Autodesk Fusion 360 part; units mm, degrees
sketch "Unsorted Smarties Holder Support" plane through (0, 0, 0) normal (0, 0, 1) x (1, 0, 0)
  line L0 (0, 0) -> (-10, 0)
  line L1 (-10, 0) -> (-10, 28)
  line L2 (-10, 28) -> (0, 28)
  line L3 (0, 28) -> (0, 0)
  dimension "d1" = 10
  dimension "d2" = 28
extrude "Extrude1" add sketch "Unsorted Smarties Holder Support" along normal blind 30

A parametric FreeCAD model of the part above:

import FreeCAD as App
import Part
import Sketcher
from FreeCAD import Vector


def add_polygon(sketch, points):
    """Adds a closed chain of lines whose ends are joined by coincident constraints."""
    first, n = sketch.GeometryCount, len(points)
    for a, b in zip(points, points[1:] + points[:1]):
        sketch.addGeometry(Part.LineSegment(App.Vector(*a, 0), App.Vector(*b, 0)), False)
    for i in range(n):
        sketch.addConstraint(Sketcher.Constraint("Coincident", first + i, 2, first + (i + 1) % n, 1))

doc = App.newDocument("Part")
body = doc.addObject("PartDesign::Body", "Body")

# Sketch on XY plane
sketch1 = body.newObject("Sketcher::SketchObject", "Sketch")
sketch1.AttachmentSupport = (doc.getObject("XY_Plane"), [""])
sketch1.MapMode = "FlatFace"
add_polygon(sketch1, [(-10, 0), (0, 0), (0, 28), (-10, 28)])  # lines 0-3
sketch1.addConstraint([
    Sketcher.Constraint("Horizontal", 0),
    Sketcher.Constraint("Vertical", 1),
    Sketcher.Constraint("Horizontal", 2),
    Sketcher.Constraint("Vertical", 3),
    Sketcher.Constraint("Coincident", 0, 2, -1, 1),
    Sketcher.Constraint("DistanceX", 0, 1, 0, 2, 10.0),
    Sketcher.Constraint("DistanceY", 1, 1, 1, 2, 28.0),
])
pad1 = body.newObject("PartDesign::Pad", "Pad")
pad1.Profile = sketch1
pad1.Length = 30

doc.recompute()
